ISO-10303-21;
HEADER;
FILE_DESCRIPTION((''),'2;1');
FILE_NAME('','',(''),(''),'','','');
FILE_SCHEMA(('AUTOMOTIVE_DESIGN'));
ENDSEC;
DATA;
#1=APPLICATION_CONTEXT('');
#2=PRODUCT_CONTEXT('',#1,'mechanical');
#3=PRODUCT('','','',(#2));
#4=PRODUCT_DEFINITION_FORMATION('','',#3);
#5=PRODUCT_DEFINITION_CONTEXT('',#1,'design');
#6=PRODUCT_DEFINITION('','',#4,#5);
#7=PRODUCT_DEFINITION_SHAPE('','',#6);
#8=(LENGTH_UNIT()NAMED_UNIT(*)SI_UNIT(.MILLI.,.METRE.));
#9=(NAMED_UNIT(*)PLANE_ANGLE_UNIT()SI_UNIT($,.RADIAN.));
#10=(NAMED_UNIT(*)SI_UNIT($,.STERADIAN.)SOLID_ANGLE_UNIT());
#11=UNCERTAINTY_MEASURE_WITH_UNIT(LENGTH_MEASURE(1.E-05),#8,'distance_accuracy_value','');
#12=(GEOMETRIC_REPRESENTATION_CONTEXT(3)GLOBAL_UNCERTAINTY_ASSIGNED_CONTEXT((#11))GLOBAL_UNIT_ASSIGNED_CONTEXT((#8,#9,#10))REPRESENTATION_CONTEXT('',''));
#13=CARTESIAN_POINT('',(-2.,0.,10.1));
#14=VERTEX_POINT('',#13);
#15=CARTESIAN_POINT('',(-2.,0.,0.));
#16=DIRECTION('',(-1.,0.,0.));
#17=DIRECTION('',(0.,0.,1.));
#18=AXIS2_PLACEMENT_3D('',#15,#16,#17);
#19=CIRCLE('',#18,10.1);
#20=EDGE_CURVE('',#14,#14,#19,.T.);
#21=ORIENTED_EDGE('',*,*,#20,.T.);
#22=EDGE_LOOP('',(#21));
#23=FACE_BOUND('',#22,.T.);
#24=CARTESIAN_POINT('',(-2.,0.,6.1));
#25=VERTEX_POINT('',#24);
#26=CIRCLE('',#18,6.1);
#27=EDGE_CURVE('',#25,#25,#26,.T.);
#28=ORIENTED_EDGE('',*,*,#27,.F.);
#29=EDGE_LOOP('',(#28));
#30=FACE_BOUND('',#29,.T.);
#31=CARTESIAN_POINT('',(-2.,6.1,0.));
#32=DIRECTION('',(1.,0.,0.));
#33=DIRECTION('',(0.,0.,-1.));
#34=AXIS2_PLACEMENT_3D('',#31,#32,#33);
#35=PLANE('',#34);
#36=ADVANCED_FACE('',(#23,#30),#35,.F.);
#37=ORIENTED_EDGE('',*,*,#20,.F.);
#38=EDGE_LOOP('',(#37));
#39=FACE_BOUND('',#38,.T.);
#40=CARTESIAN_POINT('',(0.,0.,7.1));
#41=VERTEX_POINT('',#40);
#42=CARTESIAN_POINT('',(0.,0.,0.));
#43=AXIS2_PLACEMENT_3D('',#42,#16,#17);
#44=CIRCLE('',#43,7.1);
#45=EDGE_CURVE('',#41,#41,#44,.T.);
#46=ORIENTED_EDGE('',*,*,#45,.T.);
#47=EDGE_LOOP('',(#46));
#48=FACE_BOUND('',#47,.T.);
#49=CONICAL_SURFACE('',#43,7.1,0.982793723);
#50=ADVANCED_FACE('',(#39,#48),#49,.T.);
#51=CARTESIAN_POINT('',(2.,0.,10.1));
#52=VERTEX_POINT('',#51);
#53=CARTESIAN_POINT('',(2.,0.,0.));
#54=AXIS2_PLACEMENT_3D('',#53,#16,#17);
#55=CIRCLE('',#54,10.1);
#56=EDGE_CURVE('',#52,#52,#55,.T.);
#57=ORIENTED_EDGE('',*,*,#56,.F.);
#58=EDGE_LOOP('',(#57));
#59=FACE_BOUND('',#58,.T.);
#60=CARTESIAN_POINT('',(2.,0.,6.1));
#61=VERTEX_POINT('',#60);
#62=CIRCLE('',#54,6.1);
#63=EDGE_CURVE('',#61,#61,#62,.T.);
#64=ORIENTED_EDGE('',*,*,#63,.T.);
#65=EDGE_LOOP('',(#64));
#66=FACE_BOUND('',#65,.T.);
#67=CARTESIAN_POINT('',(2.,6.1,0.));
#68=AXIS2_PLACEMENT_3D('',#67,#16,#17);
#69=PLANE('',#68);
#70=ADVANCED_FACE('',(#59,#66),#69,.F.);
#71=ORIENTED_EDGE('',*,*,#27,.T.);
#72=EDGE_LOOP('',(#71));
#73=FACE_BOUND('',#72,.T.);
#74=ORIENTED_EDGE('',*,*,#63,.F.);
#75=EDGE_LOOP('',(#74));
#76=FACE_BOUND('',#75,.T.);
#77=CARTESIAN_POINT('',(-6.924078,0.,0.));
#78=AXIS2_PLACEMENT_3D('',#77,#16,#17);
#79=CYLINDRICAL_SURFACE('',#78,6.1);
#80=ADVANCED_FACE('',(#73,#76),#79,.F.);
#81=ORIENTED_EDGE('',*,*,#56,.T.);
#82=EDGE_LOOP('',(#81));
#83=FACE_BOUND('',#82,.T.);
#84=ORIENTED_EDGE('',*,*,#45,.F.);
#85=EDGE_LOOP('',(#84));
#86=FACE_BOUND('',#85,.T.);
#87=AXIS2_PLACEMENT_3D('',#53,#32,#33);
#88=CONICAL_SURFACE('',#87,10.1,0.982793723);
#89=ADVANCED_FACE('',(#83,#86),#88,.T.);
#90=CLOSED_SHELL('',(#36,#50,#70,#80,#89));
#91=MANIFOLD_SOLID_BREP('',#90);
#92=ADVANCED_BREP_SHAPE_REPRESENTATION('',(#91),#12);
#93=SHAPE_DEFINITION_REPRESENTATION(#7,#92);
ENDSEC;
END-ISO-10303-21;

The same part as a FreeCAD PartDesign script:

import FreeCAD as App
import Part
import Sketcher

V = App.Vector


def add_polygon(sketch, points):
    """Adds a closed chain of lines whose ends are joined by coincident constraints."""
    first, n = sketch.GeometryCount, len(points)
    for a, b in zip(points, points[1:] + points[:1]):
        sketch.addGeometry(Part.LineSegment(App.Vector(*a, 0), App.Vector(*b, 0)), False)
    for i in range(n):
        sketch.addConstraint(Sketcher.Constraint("Coincident", first + i, 2, first + (i + 1) % n, 1))

doc = App.newDocument("Part")
body = doc.addObject("PartDesign::Body", "Body")

# Sketch on XY plane
sketch1 = body.newObject("Sketcher::SketchObject", "Sketch")
sketch1.AttachmentSupport = (doc.getObject("XY_Plane"), [""])
sketch1.MapMode = "FlatFace"
add_polygon(sketch1, [(-2, 6.1), (2, 6.1), (2, 10.1), (0, 7.1), (-2, 10.1)])  # lines 0-4
sketch1.addConstraint([
    Sketcher.Constraint("Horizontal", 0),
    Sketcher.Constraint("Vertical", 1),
    Sketcher.Constraint("Vertical", 4),
    Sketcher.Constraint("Symmetric", 1, 2, 3, 2, -2),
    Sketcher.Constraint("PointOnObject", 2, 2, -2),
    Sketcher.Constraint("Equal", 0, 1),
    Sketcher.Constraint("DistanceX", 0, 1, 0, 2, 4.0),
    Sketcher.Constraint("DistanceY", 0, 2, 2, 2, 1.0),
    Sketcher.Constraint("DistanceY", -1, 1, 0, 2, 6.1),
])
revolution = body.newObject("PartDesign::Revolution", "Revolution")
revolution.Profile = sketch1
revolution.ReferenceAxis = (sketch1, ["H_Axis"])
revolution.Angle = 360

doc.recompute()
